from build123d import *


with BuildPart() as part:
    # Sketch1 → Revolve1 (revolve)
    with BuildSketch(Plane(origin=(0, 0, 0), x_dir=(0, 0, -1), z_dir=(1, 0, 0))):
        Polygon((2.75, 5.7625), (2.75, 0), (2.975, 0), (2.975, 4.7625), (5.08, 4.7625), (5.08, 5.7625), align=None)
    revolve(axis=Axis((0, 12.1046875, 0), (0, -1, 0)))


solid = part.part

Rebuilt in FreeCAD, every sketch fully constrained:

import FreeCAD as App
import Part
import Sketcher

V = App.Vector


def add_polygon(sketch, points):
    """Adds a closed chain of lines whose ends are joined by coincident constraints."""
    first, n = sketch.GeometryCount, len(points)
    for a, b in zip(points, points[1:] + points[:1]):
        sketch.addGeometry(Part.LineSegment(App.Vector(*a, 0), App.Vector(*b, 0)), False)
    for i in range(n):
        sketch.addConstraint(Sketcher.Constraint("Coincident", first + i, 2, first + (i + 1) % n, 1))

doc = App.newDocument("Part")
body = doc.addObject("PartDesign::Body", "Body")

# Sketch on YZ plane
sketch1 = body.newObject("Sketcher::SketchObject", "Sketch")
sketch1.AttachmentSupport = (doc.getObject("YZ_Plane"), [""])
sketch1.MapMode = "FlatFace"
add_polygon(sketch1, [(5.76, -2.75), (0, -2.75), (0, -2.98), (4.76, -2.98), (4.76, -5.08), (5.76, -5.08)])  # lines 0-5
sketch1.addConstraint(Sketcher.Constraint("Horizontal", 0))
sketch1.addConstraint(Sketcher.Constraint("Vertical", 1))
sketch1.addConstraint(Sketcher.Constraint("Horizontal", 2))
sketch1.addConstraint(Sketcher.Constraint("Vertical", 3))
sketch1.addConstraint(Sketcher.Constraint("Horizontal", 4))
sketch1.addConstraint(Sketcher.Constraint("Vertical", 5))
sketch1.addConstraint(Sketcher.Constraint("PointOnObject", 0, 2, -2))
sketch1.addConstraint(Sketcher.Constraint("DistanceX", 4, 1, 4, 2, 1.0))
sketch1.addConstraint(Sketcher.Constraint("DistanceY", 5, 1, 5, 2, 2.33))
sketch1.addConstraint(Sketcher.Constraint("DistanceY", 1, 2, 1, 1, 0.225))
sketch1.addConstraint(Sketcher.Constraint("DistanceY", 0, 2, -1, 1, 2.75))
sketch1.addConstraint(Sketcher.Constraint("DistanceX", 0, 2, 0, 1, 5.7625))
revolution = body.newObject("PartDesign::Revolution", "Revolution")
revolution.Profile = sketch1
revolution.ReferenceAxis = (sketch1, ["H_Axis"])
revolution.Angle = 360

doc.recompute()
